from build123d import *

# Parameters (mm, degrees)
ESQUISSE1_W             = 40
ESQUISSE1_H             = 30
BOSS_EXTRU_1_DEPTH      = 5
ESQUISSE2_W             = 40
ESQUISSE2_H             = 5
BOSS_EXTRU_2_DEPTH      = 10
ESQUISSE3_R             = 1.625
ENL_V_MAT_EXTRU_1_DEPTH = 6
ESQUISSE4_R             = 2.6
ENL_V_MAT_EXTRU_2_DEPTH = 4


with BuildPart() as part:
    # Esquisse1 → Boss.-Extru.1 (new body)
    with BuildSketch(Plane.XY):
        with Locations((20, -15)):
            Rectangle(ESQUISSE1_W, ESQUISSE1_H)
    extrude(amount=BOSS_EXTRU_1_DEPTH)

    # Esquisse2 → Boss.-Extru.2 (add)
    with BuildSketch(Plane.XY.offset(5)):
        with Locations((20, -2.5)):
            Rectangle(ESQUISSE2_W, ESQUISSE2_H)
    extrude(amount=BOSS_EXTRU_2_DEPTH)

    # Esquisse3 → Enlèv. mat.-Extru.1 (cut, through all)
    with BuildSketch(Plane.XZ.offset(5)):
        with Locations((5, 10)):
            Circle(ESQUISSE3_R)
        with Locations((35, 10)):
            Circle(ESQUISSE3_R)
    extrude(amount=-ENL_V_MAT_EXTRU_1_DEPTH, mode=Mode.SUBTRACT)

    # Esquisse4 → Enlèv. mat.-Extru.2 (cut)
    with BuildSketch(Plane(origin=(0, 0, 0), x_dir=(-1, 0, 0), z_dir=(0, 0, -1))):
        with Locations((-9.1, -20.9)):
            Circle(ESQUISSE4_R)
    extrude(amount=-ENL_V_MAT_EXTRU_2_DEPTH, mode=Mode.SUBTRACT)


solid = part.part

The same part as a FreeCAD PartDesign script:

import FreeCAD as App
import Part
import Sketcher

V = App.Vector
Q = App.Units.Quantity

doc = App.newDocument("Part")
body = doc.addObject("PartDesign::Body", "Body")

# Sketch on XY plane
sketch1 = body.newObject("Sketcher::SketchObject", "Sketch")
sketch1.AttachmentSupport = (doc.getObject("XY_Plane"), [""])
sketch1.MapMode = "FlatFace"
sketch1.addGeometry([
    Part.LineSegment(V(0, 0, 0), V(0, -30, 0)),
    Part.LineSegment(V(0, -30, 0), V(40, -30, 0)),
    Part.LineSegment(V(40, -30, 0), V(40, 0, 0)),
    Part.LineSegment(V(40, 0, 0), V(0, 0, 0)),
], False)
sketch1.addConstraint([
    Sketcher.Constraint("Coincident", 0, 2, 1, 1),
    Sketcher.Constraint("Coincident", 1, 2, 2, 1),
    Sketcher.Constraint("Coincident", 2, 2, 3, 1),
    Sketcher.Constraint("Coincident", 3, 2, 0, 1),
    Sketcher.Constraint("Vertical", 0),
    Sketcher.Constraint("Horizontal", 1),
    Sketcher.Constraint("Vertical", 2),
    Sketcher.Constraint("Horizontal", 3),
    Sketcher.Constraint("Coincident", 3, 2, -1, 1),
    Sketcher.Constraint("DistanceX", 1, 1, 1, 2, Q("40 mm")),
    Sketcher.Constraint("DistanceY", 0, 2, 0, 1, Q("30 mm")),
])
pad1 = body.newObject("PartDesign::Pad", "Pad")
pad1.Profile = sketch1
pad1.Length = 5

# Sketch on XY plane
sketch2 = body.newObject("Sketcher::SketchObject", "Sketch001")
sketch2.AttachmentSupport = (doc.getObject("XY_Plane"), [""])
sketch2.MapMode = "FlatFace"
sketch2.AttachmentOffset = App.Placement(V(0, 0, 5), App.Rotation())
sketch2.addGeometry([
    Part.LineSegment(V(0, 0, 0), V(0, -5, 0)),
    Part.LineSegment(V(0, -5, 0), V(40, -5, 0)),
    Part.LineSegment(V(40, -5, 0), V(40, 0, 0)),
    Part.LineSegment(V(40, 0, 0), V(0, 0, 0)),
], False)
sketch2.addConstraint([
    Sketcher.Constraint("Coincident", 0, 2, 1, 1),
    Sketcher.Constraint("Coincident", 1, 2, 2, 1),
    Sketcher.Constraint("Coincident", 2, 2, 3, 1),
    Sketcher.Constraint("Coincident", 3, 2, 0, 1),
    Sketcher.Constraint("Vertical", 0),
    Sketcher.Constraint("Horizontal", 1),
    Sketcher.Constraint("Vertical", 2),
    Sketcher.Constraint("Horizontal", 3),
    Sketcher.Constraint("Coincident", 3, 2, -1, 1),
    Sketcher.Constraint("DistanceX", 1, 1, 1, 2, Q("40 mm")),
    Sketcher.Constraint("DistanceY", 0, 2, 0, 1, Q("5 mm")),
])
pad2 = body.newObject("PartDesign::Pad", "Pad001")
pad2.Profile = sketch2
pad2.Length = 10

# Sketch on XZ plane
sketch3 = body.newObject("Sketcher::SketchObject", "Sketch002")
sketch3.AttachmentSupport = (doc.getObject("XZ_Plane"), [""])
sketch3.MapMode = "FlatFace"
sketch3.AttachmentOffset = App.Placement(V(0, 0, 5), App.Rotation())
sketch3.addGeometry([
    Part.Circle(V(5, 10, 0), V(0, 0, 1), 1.6),
    Part.Circle(V(35, 10, 0), V(0, 0, 1), 1.6),
], False)
sketch3.addConstraint([
    Sketcher.Constraint("Equal", 0, 1),
    Sketcher.Constraint("Horizontal", 0, 3, 1, 3),
    Sketcher.Constraint("Diameter", 0, Q("3.25 mm")),
    Sketcher.Constraint("DistanceX", -1, 1, 0, 3, Q("5 mm")),
    Sketcher.Constraint("DistanceY", -1, 1, 0, 3, Q("10 mm")),
    Sketcher.Constraint("DistanceX", -1, 1, 1, 3, Q("35 mm")),
])
pocket1 = body.newObject("PartDesign::Pocket", "Pocket")
pocket1.Profile = sketch3
pocket1.Type = "ThroughAll"

# Sketch on XY plane
sketch4 = body.newObject("Sketcher::SketchObject", "Sketch003")
sketch4.AttachmentSupport = (doc.getObject("XY_Plane"), [""])
sketch4.MapMode = "FlatFace"
sketch4.addGeometry(Part.Circle(V(9.1, -20.9, 0), V(0, 0, 1), 2.6), False)
sketch4.addConstraint([
    Sketcher.Constraint("Diameter", 0, Q("5.2 mm")),
    Sketcher.Constraint("DistanceX", -1, 1, 0, 3, Q("9.1 mm")),
    Sketcher.Constraint("DistanceY", 0, 3, -1, 1, Q("20.9 mm")),
])
pocket2 = body.newObject("PartDesign::Pocket", "Pocket001")
pocket2.Profile = sketch4
pocket2.Length = 4
pocket2.Reversed = True

doc.recompute()
